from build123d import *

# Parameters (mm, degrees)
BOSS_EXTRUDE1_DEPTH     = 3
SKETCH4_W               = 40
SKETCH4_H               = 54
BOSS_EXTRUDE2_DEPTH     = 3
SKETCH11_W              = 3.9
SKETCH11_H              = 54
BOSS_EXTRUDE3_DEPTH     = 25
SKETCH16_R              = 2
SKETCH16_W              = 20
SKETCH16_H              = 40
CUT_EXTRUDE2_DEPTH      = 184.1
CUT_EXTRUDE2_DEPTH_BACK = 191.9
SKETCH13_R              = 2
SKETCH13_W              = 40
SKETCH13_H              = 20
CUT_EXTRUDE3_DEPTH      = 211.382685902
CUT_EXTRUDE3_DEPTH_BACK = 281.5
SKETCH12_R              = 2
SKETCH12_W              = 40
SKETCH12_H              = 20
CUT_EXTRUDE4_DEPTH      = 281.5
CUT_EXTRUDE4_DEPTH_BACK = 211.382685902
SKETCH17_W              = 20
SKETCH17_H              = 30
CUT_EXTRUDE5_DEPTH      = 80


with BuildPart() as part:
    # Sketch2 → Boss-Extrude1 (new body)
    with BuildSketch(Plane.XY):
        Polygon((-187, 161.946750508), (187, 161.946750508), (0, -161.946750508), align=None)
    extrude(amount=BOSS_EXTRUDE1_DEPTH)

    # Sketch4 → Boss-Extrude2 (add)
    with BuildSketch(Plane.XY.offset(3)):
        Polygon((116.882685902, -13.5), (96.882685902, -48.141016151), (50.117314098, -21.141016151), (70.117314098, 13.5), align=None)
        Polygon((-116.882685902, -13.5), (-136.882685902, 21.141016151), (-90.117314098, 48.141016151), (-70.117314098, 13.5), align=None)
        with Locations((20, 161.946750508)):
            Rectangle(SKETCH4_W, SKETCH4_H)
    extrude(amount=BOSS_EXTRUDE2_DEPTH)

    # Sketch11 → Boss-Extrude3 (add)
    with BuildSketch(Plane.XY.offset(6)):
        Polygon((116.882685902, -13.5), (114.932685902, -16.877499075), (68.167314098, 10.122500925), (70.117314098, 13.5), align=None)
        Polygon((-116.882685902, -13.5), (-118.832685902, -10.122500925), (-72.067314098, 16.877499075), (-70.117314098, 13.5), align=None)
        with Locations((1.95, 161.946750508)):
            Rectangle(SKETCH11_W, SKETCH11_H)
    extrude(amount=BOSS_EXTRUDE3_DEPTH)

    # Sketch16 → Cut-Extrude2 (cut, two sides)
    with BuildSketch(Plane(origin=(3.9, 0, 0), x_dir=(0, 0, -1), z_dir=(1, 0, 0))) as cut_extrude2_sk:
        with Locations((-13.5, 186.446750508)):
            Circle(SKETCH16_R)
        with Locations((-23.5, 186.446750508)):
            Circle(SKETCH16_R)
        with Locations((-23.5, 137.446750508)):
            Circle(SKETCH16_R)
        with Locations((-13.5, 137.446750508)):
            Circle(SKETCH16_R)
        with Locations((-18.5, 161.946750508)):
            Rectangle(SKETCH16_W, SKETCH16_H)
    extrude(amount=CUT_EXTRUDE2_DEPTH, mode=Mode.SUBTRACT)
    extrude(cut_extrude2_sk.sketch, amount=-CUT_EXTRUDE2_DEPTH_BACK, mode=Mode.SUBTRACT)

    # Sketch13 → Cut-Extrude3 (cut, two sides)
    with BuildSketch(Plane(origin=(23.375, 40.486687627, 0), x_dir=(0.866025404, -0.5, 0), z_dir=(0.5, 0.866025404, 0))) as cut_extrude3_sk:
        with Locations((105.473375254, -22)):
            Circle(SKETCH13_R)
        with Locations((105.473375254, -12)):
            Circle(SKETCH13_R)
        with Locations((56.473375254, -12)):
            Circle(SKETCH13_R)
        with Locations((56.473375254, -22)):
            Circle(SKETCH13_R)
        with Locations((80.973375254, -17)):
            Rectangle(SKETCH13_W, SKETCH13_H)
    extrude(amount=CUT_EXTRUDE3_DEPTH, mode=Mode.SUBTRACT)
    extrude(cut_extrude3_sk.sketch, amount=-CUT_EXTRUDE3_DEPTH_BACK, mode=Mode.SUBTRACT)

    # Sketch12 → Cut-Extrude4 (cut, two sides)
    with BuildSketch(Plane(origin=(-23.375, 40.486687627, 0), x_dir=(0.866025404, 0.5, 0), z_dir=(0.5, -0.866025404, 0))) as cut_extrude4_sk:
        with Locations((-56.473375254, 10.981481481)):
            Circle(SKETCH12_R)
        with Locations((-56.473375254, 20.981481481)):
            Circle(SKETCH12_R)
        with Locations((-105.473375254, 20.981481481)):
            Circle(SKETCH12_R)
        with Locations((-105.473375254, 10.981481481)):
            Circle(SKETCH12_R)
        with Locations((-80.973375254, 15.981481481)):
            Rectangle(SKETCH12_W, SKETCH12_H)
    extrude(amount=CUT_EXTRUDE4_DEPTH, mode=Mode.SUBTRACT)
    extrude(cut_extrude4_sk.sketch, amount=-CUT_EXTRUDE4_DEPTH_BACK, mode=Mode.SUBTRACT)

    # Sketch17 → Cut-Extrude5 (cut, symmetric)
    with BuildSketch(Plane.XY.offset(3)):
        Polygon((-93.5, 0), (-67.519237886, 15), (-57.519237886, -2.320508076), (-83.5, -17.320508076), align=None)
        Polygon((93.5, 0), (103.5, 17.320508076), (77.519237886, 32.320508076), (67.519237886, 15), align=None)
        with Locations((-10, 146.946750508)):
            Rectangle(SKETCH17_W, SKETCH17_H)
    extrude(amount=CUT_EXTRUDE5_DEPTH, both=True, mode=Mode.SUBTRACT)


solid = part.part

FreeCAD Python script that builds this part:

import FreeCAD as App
import Part
import Sketcher

V = App.Vector
Q = App.Units.Quantity


def add_polygon(sketch, points):
    """Adds a closed chain of lines whose ends are joined by coincident constraints."""
    first, n = sketch.GeometryCount, len(points)
    for a, b in zip(points, points[1:] + points[:1]):
        sketch.addGeometry(Part.LineSegment(App.Vector(*a, 0), App.Vector(*b, 0)), False)
    for i in range(n):
        sketch.addConstraint(Sketcher.Constraint("Coincident", first + i, 2, first + (i + 1) % n, 1))

doc = App.newDocument("Part")
body = doc.addObject("PartDesign::Body", "Body")

# Sketch on XY plane
sketch1 = body.newObject("Sketcher::SketchObject", "Sketch")
sketch1.AttachmentSupport = (doc.getObject("XY_Plane"), [""])
sketch1.MapMode = "FlatFace"
add_polygon(sketch1, [(187, 162), (-187, 162), (0, -162)])  # lines 0-2
sketch1.addConstraint(Sketcher.Constraint("Horizontal", 0))
sketch1.addConstraint(Sketcher.Constraint("PointOnObject", 1, 2, -2))
sketch1.addConstraint(Sketcher.Constraint("Equal", 1, 2))
sketch1.addConstraint(Sketcher.Constraint("DistanceX", 0, 2, 0, 1, Q("374 mm")))
sketch1.addConstraint(Sketcher.Constraint("Angle", 1, Q("-60 deg")))
sketch1.addConstraint(Sketcher.Constraint("DistanceY", -1, 1, 0, 2, Q("161.946751 mm")))
pad1 = body.newObject("PartDesign::Pad", "Pad")
pad1.Profile = sketch1
pad1.Length = 3

# Sketch on XY plane
sketch2 = body.newObject("Sketcher::SketchObject", "Sketch001")
sketch2.AttachmentSupport = (doc.getObject("XY_Plane"), [""])
sketch2.MapMode = "FlatFace"
sketch2.AttachmentOffset = App.Placement(V(0, 0, 3), App.Rotation())
add_polygon(sketch2, [(97, -48), (117, -14), (70, 14), (50, -21)])  # lines 0-3
add_polygon(sketch2, [(-137, 21), (-117, -14), (-70, 14), (-90, 48)])  # lines 4-7
add_polygon(sketch2, [(0, 189), (0, 135), (40, 135), (40, 189)])  # lines 8-11
sketch2.addConstraint(Sketcher.Constraint("Vertical", 8))
sketch2.addConstraint(Sketcher.Constraint("Horizontal", 9))
sketch2.addConstraint(Sketcher.Constraint("Vertical", 10))
sketch2.addConstraint(Sketcher.Constraint("Horizontal", 11))
sketch2.addConstraint(Sketcher.Constraint("Symmetric", 0, 2, 4, 2, -2))
sketch2.addConstraint(Sketcher.Constraint("Symmetric", 1, 2, 5, 2, -2))
sketch2.addConstraint(Sketcher.Constraint("PointOnObject", 8, 2, -2))
sketch2.addConstraint(Sketcher.Constraint("Perpendicular", 0, 1))
sketch2.addConstraint(Sketcher.Constraint("Perpendicular", 1, 2))
sketch2.addConstraint(Sketcher.Constraint("Perpendicular", 2, 3))
sketch2.addConstraint(Sketcher.Constraint("Perpendicular", 4, 5))
sketch2.addConstraint(Sketcher.Constraint("Perpendicular", 5, 6))
sketch2.addConstraint(Sketcher.Constraint("Perpendicular", 6, 7))
sketch2.addConstraint(Sketcher.Constraint("Equal", 2, 4))
sketch2.addConstraint(Sketcher.Constraint("DistanceX", 9, 1, 9, 2, Q("40 mm")))
sketch2.addConstraint(Sketcher.Constraint("DistanceY", 8, 2, 8, 1, Q("54 mm")))
sketch2.addConstraint(Sketcher.Constraint("Angle", 0, Q("60 deg")))
sketch2.addConstraint(Sketcher.Constraint("Distance", 0, Q("40 mm")))
sketch2.addConstraint(Sketcher.Constraint("Distance", 1, Q("54 mm")))
sketch2.addConstraint(Sketcher.Constraint("DistanceX", 4, 2, 2, 2, Q("167 mm")))
sketch2.addConstraint(Sketcher.Constraint("DistanceY", 0, 2, -1, 1, Q("13.5 mm")))
sketch2.addConstraint(Sketcher.Constraint("DistanceY", -1, 1, 8, 2, Q("134.946751 mm")))
pad2 = body.newObject("PartDesign::Pad", "Pad001")
pad2.Profile = sketch2
pad2.Length = 3

# Sketch on XY plane
sketch3 = body.newObject("Sketcher::SketchObject", "Sketch002")
sketch3.AttachmentSupport = (doc.getObject("XY_Plane"), [""])
sketch3.MapMode = "FlatFace"
sketch3.AttachmentOffset = App.Placement(V(0, 0, 6), App.Rotation())
add_polygon(sketch3, [(114.9, -16.9), (116.9, -13.5), (70.1, 13.5), (68.2, 10.1)])  # lines 0-3
add_polygon(sketch3, [(-118.8, -10.1), (-116.9, -13.5), (-70.1, 13.5), (-72.1, 16.9)])  # lines 4-7
add_polygon(sketch3, [(0, 188.9), (0, 134.9), (3.9, 134.9), (3.9, 188.9)])  # lines 8-11
sketch3.addConstraint(Sketcher.Constraint("Vertical", 8))
sketch3.addConstraint(Sketcher.Constraint("Horizontal", 9))
sketch3.addConstraint(Sketcher.Constraint("Vertical", 10))
sketch3.addConstraint(Sketcher.Constraint("Horizontal", 11))
sketch3.addConstraint(Sketcher.Constraint("Symmetric", 0, 2, 4, 2, -2))
sketch3.addConstraint(Sketcher.Constraint("Symmetric", 1, 2, 5, 2, -2))
sketch3.addConstraint(Sketcher.Constraint("PointOnObject", 8, 2, -2))
sketch3.addConstraint(Sketcher.Constraint("Perpendicular", 0, 1))
sketch3.addConstraint(Sketcher.Constraint("Perpendicular", 1, 2))
sketch3.addConstraint(Sketcher.Constraint("Perpendicular", 2, 3))
sketch3.addConstraint(Sketcher.Constraint("Perpendicular", 4, 5))
sketch3.addConstraint(Sketcher.Constraint("Perpendicular", 5, 6))
sketch3.addConstraint(Sketcher.Constraint("Perpendicular", 6, 7))
sketch3.addConstraint(Sketcher.Constraint("Equal", 2, 4))
sketch3.addConstraint(Sketcher.Constraint("DistanceY", 8, 2, 8, 1, Q("54 mm")))
sketch3.addConstraint(Sketcher.Constraint("Angle", 0, Q("60 deg")))
sketch3.addConstraint(Sketcher.Constraint("Distance", 1, Q("54 mm")))
sketch3.addConstraint(Sketcher.Constraint("DistanceX", 9, 1, 9, 2, Q("3.9 mm")))
sketch3.addConstraint(Sketcher.Constraint("DistanceX", 4, 2, 1, 2, Q("187 mm")))
sketch3.addConstraint(Sketcher.Constraint("Distance", 0, Q("3.9 mm")))
sketch3.addConstraint(Sketcher.Constraint("DistanceY", 0, 2, -1, 1, Q("13.5 mm")))
sketch3.addConstraint(Sketcher.Constraint("DistanceY", -1, 1, 8, 2, Q("134.946751 mm")))
pad3 = body.newObject("PartDesign::Pad", "Pad002")
pad3.Profile = sketch3
pad3.Length = 25

# Sketch on YZ plane
sketch4 = body.newObject("Sketcher::SketchObject", "Sketch003")
sketch4.AttachmentSupport = (doc.getObject("YZ_Plane"), [""])
sketch4.MapMode = "FlatFace"
sketch4.AttachmentOffset = App.Placement(V(0, 0, 3.9), App.Rotation())
sketch4.addGeometry(Part.Circle(V(186.4, 13.5, 0), V(0, 0, 1), 2), False)  # 0
sketch4.addGeometry(Part.Circle(V(186.4, 23.5, 0), V(0, 0, 1), 2), False)  # 1
sketch4.addGeometry(Part.Circle(V(137.4, 23.5, 0), V(0, 0, 1), 2), False)  # 2
sketch4.addGeometry(Part.Circle(V(137.4, 13.5, 0), V(0, 0, 1), 2), False)  # 3
add_polygon(sketch4, [(181.9, 28.5), (141.9, 28.5), (141.9, 8.5), (181.9, 8.5)])  # lines 4-7
sketch4.addConstraint(Sketcher.Constraint("Horizontal", 4))
sketch4.addConstraint(Sketcher.Constraint("Vertical", 5))
sketch4.addConstraint(Sketcher.Constraint("Horizontal", 6))
sketch4.addConstraint(Sketcher.Constraint("Vertical", 7))
sketch4.addConstraint(Sketcher.Constraint("Equal", 0, 1))
sketch4.addConstraint(Sketcher.Constraint("Equal", 1, 2))
sketch4.addConstraint(Sketcher.Constraint("Equal", 2, 3))
sketch4.addConstraint(Sketcher.Constraint("Horizontal", 1, 3, 2, 3))
sketch4.addConstraint(Sketcher.Constraint("Horizontal", 0, 3, 3, 3))
sketch4.addConstraint(Sketcher.Constraint("Vertical", 0, 3, 1, 3))
sketch4.addConstraint(Sketcher.Constraint("Vertical", 2, 3, 3, 3))
sketch4.addConstraint(Sketcher.Constraint("Diameter", 0, Q("4 mm")))
sketch4.addConstraint(Sketcher.Constraint("DistanceX", 4, 2, 4, 1, Q("40 mm")))
sketch4.addConstraint(Sketcher.Constraint("DistanceY", 5, 2, 5, 1, Q("20 mm")))
sketch4.addConstraint(Sketcher.Constraint("DistanceY", 0, 3, 1, 3, Q("10 mm")))
sketch4.addConstraint(Sketcher.Constraint("DistanceX", 2, 3, 1, 3, Q("49 mm")))
sketch4.addConstraint(Sketcher.Constraint("DistanceY", 2, 3, 4, 2, Q("5 mm")))
sketch4.addConstraint(Sketcher.Constraint("DistanceY", -1, 1, 0, 3, Q("13.5 mm")))
sketch4.addConstraint(Sketcher.Constraint("DistanceX", 2, 3, 4, 2, Q("4.5 mm")))
sketch4.addConstraint(Sketcher.Constraint("DistanceX", -1, 1, 0, 3, Q("186.446751 mm")))
pocket1 = body.newObject("PartDesign::Pocket", "Pocket")
pocket1.Profile = sketch4
pocket1.Type = "ThroughAll"
pocket1.Midplane = True

# Sketch on an angled plane
sketch5 = body.newObject("Sketcher::SketchObject", "Sketch004")
sketch5.Placement = App.Placement(V(23.375, 40.486688, 0), App.Rotation(V(0.866025404, -0.5, 0), V(0, 0, -1), V(0.5, 0.866025404, 0), "ZXY"))
sketch5.addGeometry(Part.Circle(V(105.5, -22, 0), V(0, 0, 1), 2), False)  # 0
sketch5.addGeometry(Part.Circle(V(105.5, -12, 0), V(0, 0, 1), 2), False)  # 1
sketch5.addGeometry(Part.Circle(V(56.5, -12, 0), V(0, 0, 1), 2), False)  # 2
sketch5.addGeometry(Part.Circle(V(56.5, -22, 0), V(0, 0, 1), 2), False)  # 3
add_polygon(sketch5, [(61, -7), (61, -27), (101, -27), (101, -7)])  # lines 4-7
sketch5.addConstraint(Sketcher.Constraint("Vertical", 4))
sketch5.addConstraint(Sketcher.Constraint("Horizontal", 5))
sketch5.addConstraint(Sketcher.Constraint("Vertical", 6))
sketch5.addConstraint(Sketcher.Constraint("Horizontal", 7))
sketch5.addConstraint(Sketcher.Constraint("Equal", 0, 1))
sketch5.addConstraint(Sketcher.Constraint("Equal", 1, 2))
sketch5.addConstraint(Sketcher.Constraint("Equal", 2, 3))
sketch5.addConstraint(Sketcher.Constraint("Horizontal", 1, 3, 2, 3))
sketch5.addConstraint(Sketcher.Constraint("Horizontal", 0, 3, 3, 3))
sketch5.addConstraint(Sketcher.Constraint("Vertical", 0, 3, 1, 3))
sketch5.addConstraint(Sketcher.Constraint("Vertical", 2, 3, 3, 3))
sketch5.addConstraint(Sketcher.Constraint("Diameter", 0, Q("4 mm")))
sketch5.addConstraint(Sketcher.Constraint("DistanceX", 5, 1, 5, 2, Q("40 mm")))
sketch5.addConstraint(Sketcher.Constraint("DistanceY", 4, 2, 4, 1, Q("20 mm")))
sketch5.addConstraint(Sketcher.Constraint("DistanceY", 0, 3, -1, 1, Q("22 mm")))
sketch5.addConstraint(Sketcher.Constraint("DistanceY", 1, 3, -1, 1, Q("12 mm")))
sketch5.addConstraint(Sketcher.Constraint("DistanceY", 4, 2, -1, 1, Q("27 mm")))
sketch5.addConstraint(Sketcher.Constraint("DistanceX", 2, 3, 1, 3, Q("49 mm")))
sketch5.addConstraint(Sketcher.Constraint("DistanceX", 3, 3, 4, 2, Q("4.5 mm")))
sketch5.addConstraint(Sketcher.Constraint("DistanceX", -1, 1, 0, 3, Q("105.473375 mm")))
pocket2 = body.newObject("PartDesign::Pocket", "Pocket001")
pocket2.Profile = sketch5
pocket2.Type = "ThroughAll"
pocket2.Midplane = True

# Sketch on an angled plane
sketch6 = body.newObject("Sketcher::SketchObject", "Sketch005")
sketch6.Placement = App.Placement(V(-23.375, 40.486688, 0), App.Rotation(V(0.866025404, 0.5, 0), V(0, 0, 1), V(0.5, -0.866025404, 0), "ZXY"))
sketch6.addGeometry(Part.Circle(V(-56.5, 11, 0), V(0, 0, 1), 2), False)  # 0
sketch6.addGeometry(Part.Circle(V(-56.5, 21, 0), V(0, 0, 1), 2), False)  # 1
sketch6.addGeometry(Part.Circle(V(-105.5, 21, 0), V(0, 0, 1), 2), False)  # 2
sketch6.addGeometry(Part.Circle(V(-105.5, 11, 0), V(0, 0, 1), 2), False)  # 3
add_polygon(sketch6, [(-101, 26), (-101, 6), (-61, 6), (-61, 26)])  # lines 4-7
sketch6.addConstraint(Sketcher.Constraint("Vertical", 4))
sketch6.addConstraint(Sketcher.Constraint("Horizontal", 5))
sketch6.addConstraint(Sketcher.Constraint("Vertical", 6))
sketch6.addConstraint(Sketcher.Constraint("Horizontal", 7))
sketch6.addConstraint(Sketcher.Constraint("Equal", 0, 1))
sketch6.addConstraint(Sketcher.Constraint("Equal", 1, 2))
sketch6.addConstraint(Sketcher.Constraint("Equal", 2, 3))
sketch6.addConstraint(Sketcher.Constraint("Horizontal", 1, 3, 2, 3))
sketch6.addConstraint(Sketcher.Constraint("Horizontal", 0, 3, 3, 3))
sketch6.addConstraint(Sketcher.Constraint("Vertical", 0, 3, 1, 3))
sketch6.addConstraint(Sketcher.Constraint("Vertical", 2, 3, 3, 3))
sketch6.addConstraint(Sketcher.Constraint("Diameter", 0, Q("4 mm")))
sketch6.addConstraint(Sketcher.Constraint("DistanceX", 5, 1, 5, 2, Q("40 mm")))
sketch6.addConstraint(Sketcher.Constraint("DistanceY", 4, 2, 4, 1, Q("20 mm")))
sketch6.addConstraint(Sketcher.Constraint("DistanceY", 0, 3, 1, 3, Q("10 mm")))
sketch6.addConstraint(Sketcher.Constraint("DistanceX", 2, 3, 1, 3, Q("49 mm")))
sketch6.addConstraint(Sketcher.Constraint("DistanceY", 4, 2, 3, 3, Q("5 mm")))
sketch6.addConstraint(Sketcher.Constraint("DistanceX", 3, 3, 4, 2, Q("4.5 mm")))
sketch6.addConstraint(Sketcher.Constraint("DistanceY", -1, 1, 0, 3, Q("10.981481 mm")))
sketch6.addConstraint(Sketcher.Constraint("DistanceX", 0, 3, -1, 1, Q("56.473375 mm")))
pocket3 = body.newObject("PartDesign::Pocket", "Pocket002")
pocket3.Profile = sketch6
pocket3.Type = "ThroughAll"
pocket3.Midplane = True

# Sketch on XY plane
sketch7 = body.newObject("Sketcher::SketchObject", "Sketch006")
sketch7.AttachmentSupport = (doc.getObject("XY_Plane"), [""])
sketch7.MapMode = "FlatFace"
sketch7.AttachmentOffset = App.Placement(V(0, 0, 3), App.Rotation())
add_polygon(sketch7, [(-68, 15), (-94, 0), (-84, -17), (-58, -2)])  # lines 0-3
add_polygon(sketch7, [(94, 0), (104, 17), (78, 32), (68, 15)])  # lines 4-7
add_polygon(sketch7, [(-20, 162), (-20, 132), (0, 132), (0, 162)])  # lines 8-11
sketch7.addConstraint(Sketcher.Constraint("Vertical", 8))
sketch7.addConstraint(Sketcher.Constraint("Horizontal", 9))
sketch7.addConstraint(Sketcher.Constraint("Vertical", 10))
sketch7.addConstraint(Sketcher.Constraint("Horizontal", 11))
sketch7.addConstraint(Sketcher.Constraint("Symmetric", 0, 2, 7, 2, -1, 1))
sketch7.addConstraint(Sketcher.Constraint("Symmetric", 3, 2, 6, 2, -2))
sketch7.addConstraint(Sketcher.Constraint("PointOnObject", 0, 2, -1))
sketch7.addConstraint(Sketcher.Constraint("PointOnObject", 9, 2, -2))
sketch7.addConstraint(Sketcher.Constraint("Perpendicular", 0, 1))
sketch7.addConstraint(Sketcher.Constraint("Perpendicular", 1, 2))
sketch7.addConstraint(Sketcher.Constraint("Perpendicular", 2, 3))
sketch7.addConstraint(Sketcher.Constraint("Perpendicular", 4, 5))
sketch7.addConstraint(Sketcher.Constraint("Perpendicular", 5, 6))
sketch7.addConstraint(Sketcher.Constraint("Perpendicular", 6, 7))
sketch7.addConstraint(Sketcher.Constraint("Equal", 3, 4))
sketch7.addConstraint(Sketcher.Constraint("DistanceX", 9, 1, 9, 2, Q("20 mm")))
sketch7.addConstraint(Sketcher.Constraint("DistanceY", 8, 2, 8, 1, Q("30 mm")))
sketch7.addConstraint(Sketcher.Constraint("Angle", 0, Q("-150 deg")))
sketch7.addConstraint(Sketcher.Constraint("Distance", 0, Q("30 mm")))
sketch7.addConstraint(Sketcher.Constraint("Distance", 1, Q("20 mm")))
sketch7.addConstraint(Sketcher.Constraint("DistanceX", 1, 2, 4, 2, Q("187 mm")))
sketch7.addConstraint(Sketcher.Constraint("DistanceY", -1, 1, 8, 2, Q("131.946751 mm")))
pocket4 = body.newObject("PartDesign::Pocket", "Pocket003")
pocket4.Profile = sketch7
pocket4.Length = 160
pocket4.Midplane = True

doc.recompute()
